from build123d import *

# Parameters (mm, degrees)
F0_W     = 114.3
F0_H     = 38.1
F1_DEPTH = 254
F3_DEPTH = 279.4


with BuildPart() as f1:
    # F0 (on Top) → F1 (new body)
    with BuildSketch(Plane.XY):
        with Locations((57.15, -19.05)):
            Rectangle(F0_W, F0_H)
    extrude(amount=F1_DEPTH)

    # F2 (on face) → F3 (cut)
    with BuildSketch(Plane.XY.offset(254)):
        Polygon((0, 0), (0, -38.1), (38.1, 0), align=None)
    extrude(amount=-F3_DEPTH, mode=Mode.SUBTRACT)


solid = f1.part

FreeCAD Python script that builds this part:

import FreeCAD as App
import Part
import Sketcher

V = App.Vector
Q = App.Units.Quantity

doc = App.newDocument("Part")
params = doc.addObject("Spreadsheet::Sheet", "Params")
for row, (alias, value) in enumerate([
    ("sketch1_width", "4.5 in"),
    ("sketch1_height", "1.5 in"),
    ("pad1_length", "10 in"),
    ("sketch2_width", "1.5 in"),
    ("pocket1_length", "11 in"),
], start=1):
    params.set(f"A{row}", alias)
    params.set(f"B{row}", "=" + value)
    params.setAlias(f"B{row}", alias)

body = doc.addObject("PartDesign::Body", "Body")

# Sketch on XY plane
sketch1 = body.newObject("Sketcher::SketchObject", "Sketch")
sketch1.AttachmentSupport = (doc.getObject("XY_Plane"), [""])
sketch1.MapMode = "FlatFace"
sketch1.addGeometry([
    Part.LineSegment(V(0, 0, 0), V(0, -38.1, 0)),
    Part.LineSegment(V(0, -38.1, 0), V(114.3, -38.1, 0)),
    Part.LineSegment(V(114.3, -38.1, 0), V(114.3, 0, 0)),
    Part.LineSegment(V(114.3, 0, 0), V(0, 0, 0)),
], False)
sketch1.addConstraint([
    Sketcher.Constraint("Coincident", 0, 2, 1, 1),
    Sketcher.Constraint("Coincident", 1, 2, 2, 1),
    Sketcher.Constraint("Coincident", 2, 2, 3, 1),
    Sketcher.Constraint("Coincident", 3, 2, 0, 1),
    Sketcher.Constraint("Vertical", 0),
    Sketcher.Constraint("Horizontal", 1),
    Sketcher.Constraint("Vertical", 2),
    Sketcher.Constraint("Horizontal", 3),
    Sketcher.Constraint("Coincident", 3, 2, -1, 1),
    Sketcher.Constraint("DistanceX", 1, 1, 1, 2, Q("4.5 in")),
    Sketcher.Constraint("DistanceY", 0, 2, 0, 1, Q("1.5 in")),
])
sketch1.setExpression("Constraints[9]", "Params.sketch1_width")
sketch1.setExpression("Constraints[10]", "Params.sketch1_height")
pad1 = body.newObject("PartDesign::Pad", "Pad")
pad1.Profile = sketch1
pad1.setExpression("Length", "Params.pad1_length")

# Sketch on XY plane
sketch2 = body.newObject("Sketcher::SketchObject", "Sketch001")
sketch2.AttachmentSupport = (doc.getObject("XY_Plane"), [""])
sketch2.MapMode = "FlatFace"
sketch2.AttachmentOffset = App.Placement(V(0, 0, 10 * 25.4), App.Rotation())
sketch2.addGeometry([
    Part.LineSegment(V(0, 0, 0), V(0, -38.1, 0)),
    Part.LineSegment(V(0, -38.1, 0), V(38.1, 0, 0)),
    Part.LineSegment(V(38.1, 0, 0), V(0, 0, 0)),
], False)
sketch2.addConstraint([
    Sketcher.Constraint("Coincident", 0, 2, 1, 1),
    Sketcher.Constraint("Coincident", 1, 2, 2, 1),
    Sketcher.Constraint("Coincident", 2, 2, 0, 1),
    Sketcher.Constraint("Vertical", 0),
    Sketcher.Constraint("Horizontal", 2),
    Sketcher.Constraint("Coincident", 2, 2, -1, 1),
    Sketcher.Constraint("Equal", 2, 0),
    Sketcher.Constraint("DistanceX", 2, 2, 2, 1, Q("1.5 in")),
])
sketch2.setExpression("Constraints[7]", "Params.sketch2_width")
pocket1 = body.newObject("PartDesign::Pocket", "Pocket")
pocket1.Profile = sketch2
pocket1.setExpression("Length", "Params.pocket1_length")

doc.recompute()
